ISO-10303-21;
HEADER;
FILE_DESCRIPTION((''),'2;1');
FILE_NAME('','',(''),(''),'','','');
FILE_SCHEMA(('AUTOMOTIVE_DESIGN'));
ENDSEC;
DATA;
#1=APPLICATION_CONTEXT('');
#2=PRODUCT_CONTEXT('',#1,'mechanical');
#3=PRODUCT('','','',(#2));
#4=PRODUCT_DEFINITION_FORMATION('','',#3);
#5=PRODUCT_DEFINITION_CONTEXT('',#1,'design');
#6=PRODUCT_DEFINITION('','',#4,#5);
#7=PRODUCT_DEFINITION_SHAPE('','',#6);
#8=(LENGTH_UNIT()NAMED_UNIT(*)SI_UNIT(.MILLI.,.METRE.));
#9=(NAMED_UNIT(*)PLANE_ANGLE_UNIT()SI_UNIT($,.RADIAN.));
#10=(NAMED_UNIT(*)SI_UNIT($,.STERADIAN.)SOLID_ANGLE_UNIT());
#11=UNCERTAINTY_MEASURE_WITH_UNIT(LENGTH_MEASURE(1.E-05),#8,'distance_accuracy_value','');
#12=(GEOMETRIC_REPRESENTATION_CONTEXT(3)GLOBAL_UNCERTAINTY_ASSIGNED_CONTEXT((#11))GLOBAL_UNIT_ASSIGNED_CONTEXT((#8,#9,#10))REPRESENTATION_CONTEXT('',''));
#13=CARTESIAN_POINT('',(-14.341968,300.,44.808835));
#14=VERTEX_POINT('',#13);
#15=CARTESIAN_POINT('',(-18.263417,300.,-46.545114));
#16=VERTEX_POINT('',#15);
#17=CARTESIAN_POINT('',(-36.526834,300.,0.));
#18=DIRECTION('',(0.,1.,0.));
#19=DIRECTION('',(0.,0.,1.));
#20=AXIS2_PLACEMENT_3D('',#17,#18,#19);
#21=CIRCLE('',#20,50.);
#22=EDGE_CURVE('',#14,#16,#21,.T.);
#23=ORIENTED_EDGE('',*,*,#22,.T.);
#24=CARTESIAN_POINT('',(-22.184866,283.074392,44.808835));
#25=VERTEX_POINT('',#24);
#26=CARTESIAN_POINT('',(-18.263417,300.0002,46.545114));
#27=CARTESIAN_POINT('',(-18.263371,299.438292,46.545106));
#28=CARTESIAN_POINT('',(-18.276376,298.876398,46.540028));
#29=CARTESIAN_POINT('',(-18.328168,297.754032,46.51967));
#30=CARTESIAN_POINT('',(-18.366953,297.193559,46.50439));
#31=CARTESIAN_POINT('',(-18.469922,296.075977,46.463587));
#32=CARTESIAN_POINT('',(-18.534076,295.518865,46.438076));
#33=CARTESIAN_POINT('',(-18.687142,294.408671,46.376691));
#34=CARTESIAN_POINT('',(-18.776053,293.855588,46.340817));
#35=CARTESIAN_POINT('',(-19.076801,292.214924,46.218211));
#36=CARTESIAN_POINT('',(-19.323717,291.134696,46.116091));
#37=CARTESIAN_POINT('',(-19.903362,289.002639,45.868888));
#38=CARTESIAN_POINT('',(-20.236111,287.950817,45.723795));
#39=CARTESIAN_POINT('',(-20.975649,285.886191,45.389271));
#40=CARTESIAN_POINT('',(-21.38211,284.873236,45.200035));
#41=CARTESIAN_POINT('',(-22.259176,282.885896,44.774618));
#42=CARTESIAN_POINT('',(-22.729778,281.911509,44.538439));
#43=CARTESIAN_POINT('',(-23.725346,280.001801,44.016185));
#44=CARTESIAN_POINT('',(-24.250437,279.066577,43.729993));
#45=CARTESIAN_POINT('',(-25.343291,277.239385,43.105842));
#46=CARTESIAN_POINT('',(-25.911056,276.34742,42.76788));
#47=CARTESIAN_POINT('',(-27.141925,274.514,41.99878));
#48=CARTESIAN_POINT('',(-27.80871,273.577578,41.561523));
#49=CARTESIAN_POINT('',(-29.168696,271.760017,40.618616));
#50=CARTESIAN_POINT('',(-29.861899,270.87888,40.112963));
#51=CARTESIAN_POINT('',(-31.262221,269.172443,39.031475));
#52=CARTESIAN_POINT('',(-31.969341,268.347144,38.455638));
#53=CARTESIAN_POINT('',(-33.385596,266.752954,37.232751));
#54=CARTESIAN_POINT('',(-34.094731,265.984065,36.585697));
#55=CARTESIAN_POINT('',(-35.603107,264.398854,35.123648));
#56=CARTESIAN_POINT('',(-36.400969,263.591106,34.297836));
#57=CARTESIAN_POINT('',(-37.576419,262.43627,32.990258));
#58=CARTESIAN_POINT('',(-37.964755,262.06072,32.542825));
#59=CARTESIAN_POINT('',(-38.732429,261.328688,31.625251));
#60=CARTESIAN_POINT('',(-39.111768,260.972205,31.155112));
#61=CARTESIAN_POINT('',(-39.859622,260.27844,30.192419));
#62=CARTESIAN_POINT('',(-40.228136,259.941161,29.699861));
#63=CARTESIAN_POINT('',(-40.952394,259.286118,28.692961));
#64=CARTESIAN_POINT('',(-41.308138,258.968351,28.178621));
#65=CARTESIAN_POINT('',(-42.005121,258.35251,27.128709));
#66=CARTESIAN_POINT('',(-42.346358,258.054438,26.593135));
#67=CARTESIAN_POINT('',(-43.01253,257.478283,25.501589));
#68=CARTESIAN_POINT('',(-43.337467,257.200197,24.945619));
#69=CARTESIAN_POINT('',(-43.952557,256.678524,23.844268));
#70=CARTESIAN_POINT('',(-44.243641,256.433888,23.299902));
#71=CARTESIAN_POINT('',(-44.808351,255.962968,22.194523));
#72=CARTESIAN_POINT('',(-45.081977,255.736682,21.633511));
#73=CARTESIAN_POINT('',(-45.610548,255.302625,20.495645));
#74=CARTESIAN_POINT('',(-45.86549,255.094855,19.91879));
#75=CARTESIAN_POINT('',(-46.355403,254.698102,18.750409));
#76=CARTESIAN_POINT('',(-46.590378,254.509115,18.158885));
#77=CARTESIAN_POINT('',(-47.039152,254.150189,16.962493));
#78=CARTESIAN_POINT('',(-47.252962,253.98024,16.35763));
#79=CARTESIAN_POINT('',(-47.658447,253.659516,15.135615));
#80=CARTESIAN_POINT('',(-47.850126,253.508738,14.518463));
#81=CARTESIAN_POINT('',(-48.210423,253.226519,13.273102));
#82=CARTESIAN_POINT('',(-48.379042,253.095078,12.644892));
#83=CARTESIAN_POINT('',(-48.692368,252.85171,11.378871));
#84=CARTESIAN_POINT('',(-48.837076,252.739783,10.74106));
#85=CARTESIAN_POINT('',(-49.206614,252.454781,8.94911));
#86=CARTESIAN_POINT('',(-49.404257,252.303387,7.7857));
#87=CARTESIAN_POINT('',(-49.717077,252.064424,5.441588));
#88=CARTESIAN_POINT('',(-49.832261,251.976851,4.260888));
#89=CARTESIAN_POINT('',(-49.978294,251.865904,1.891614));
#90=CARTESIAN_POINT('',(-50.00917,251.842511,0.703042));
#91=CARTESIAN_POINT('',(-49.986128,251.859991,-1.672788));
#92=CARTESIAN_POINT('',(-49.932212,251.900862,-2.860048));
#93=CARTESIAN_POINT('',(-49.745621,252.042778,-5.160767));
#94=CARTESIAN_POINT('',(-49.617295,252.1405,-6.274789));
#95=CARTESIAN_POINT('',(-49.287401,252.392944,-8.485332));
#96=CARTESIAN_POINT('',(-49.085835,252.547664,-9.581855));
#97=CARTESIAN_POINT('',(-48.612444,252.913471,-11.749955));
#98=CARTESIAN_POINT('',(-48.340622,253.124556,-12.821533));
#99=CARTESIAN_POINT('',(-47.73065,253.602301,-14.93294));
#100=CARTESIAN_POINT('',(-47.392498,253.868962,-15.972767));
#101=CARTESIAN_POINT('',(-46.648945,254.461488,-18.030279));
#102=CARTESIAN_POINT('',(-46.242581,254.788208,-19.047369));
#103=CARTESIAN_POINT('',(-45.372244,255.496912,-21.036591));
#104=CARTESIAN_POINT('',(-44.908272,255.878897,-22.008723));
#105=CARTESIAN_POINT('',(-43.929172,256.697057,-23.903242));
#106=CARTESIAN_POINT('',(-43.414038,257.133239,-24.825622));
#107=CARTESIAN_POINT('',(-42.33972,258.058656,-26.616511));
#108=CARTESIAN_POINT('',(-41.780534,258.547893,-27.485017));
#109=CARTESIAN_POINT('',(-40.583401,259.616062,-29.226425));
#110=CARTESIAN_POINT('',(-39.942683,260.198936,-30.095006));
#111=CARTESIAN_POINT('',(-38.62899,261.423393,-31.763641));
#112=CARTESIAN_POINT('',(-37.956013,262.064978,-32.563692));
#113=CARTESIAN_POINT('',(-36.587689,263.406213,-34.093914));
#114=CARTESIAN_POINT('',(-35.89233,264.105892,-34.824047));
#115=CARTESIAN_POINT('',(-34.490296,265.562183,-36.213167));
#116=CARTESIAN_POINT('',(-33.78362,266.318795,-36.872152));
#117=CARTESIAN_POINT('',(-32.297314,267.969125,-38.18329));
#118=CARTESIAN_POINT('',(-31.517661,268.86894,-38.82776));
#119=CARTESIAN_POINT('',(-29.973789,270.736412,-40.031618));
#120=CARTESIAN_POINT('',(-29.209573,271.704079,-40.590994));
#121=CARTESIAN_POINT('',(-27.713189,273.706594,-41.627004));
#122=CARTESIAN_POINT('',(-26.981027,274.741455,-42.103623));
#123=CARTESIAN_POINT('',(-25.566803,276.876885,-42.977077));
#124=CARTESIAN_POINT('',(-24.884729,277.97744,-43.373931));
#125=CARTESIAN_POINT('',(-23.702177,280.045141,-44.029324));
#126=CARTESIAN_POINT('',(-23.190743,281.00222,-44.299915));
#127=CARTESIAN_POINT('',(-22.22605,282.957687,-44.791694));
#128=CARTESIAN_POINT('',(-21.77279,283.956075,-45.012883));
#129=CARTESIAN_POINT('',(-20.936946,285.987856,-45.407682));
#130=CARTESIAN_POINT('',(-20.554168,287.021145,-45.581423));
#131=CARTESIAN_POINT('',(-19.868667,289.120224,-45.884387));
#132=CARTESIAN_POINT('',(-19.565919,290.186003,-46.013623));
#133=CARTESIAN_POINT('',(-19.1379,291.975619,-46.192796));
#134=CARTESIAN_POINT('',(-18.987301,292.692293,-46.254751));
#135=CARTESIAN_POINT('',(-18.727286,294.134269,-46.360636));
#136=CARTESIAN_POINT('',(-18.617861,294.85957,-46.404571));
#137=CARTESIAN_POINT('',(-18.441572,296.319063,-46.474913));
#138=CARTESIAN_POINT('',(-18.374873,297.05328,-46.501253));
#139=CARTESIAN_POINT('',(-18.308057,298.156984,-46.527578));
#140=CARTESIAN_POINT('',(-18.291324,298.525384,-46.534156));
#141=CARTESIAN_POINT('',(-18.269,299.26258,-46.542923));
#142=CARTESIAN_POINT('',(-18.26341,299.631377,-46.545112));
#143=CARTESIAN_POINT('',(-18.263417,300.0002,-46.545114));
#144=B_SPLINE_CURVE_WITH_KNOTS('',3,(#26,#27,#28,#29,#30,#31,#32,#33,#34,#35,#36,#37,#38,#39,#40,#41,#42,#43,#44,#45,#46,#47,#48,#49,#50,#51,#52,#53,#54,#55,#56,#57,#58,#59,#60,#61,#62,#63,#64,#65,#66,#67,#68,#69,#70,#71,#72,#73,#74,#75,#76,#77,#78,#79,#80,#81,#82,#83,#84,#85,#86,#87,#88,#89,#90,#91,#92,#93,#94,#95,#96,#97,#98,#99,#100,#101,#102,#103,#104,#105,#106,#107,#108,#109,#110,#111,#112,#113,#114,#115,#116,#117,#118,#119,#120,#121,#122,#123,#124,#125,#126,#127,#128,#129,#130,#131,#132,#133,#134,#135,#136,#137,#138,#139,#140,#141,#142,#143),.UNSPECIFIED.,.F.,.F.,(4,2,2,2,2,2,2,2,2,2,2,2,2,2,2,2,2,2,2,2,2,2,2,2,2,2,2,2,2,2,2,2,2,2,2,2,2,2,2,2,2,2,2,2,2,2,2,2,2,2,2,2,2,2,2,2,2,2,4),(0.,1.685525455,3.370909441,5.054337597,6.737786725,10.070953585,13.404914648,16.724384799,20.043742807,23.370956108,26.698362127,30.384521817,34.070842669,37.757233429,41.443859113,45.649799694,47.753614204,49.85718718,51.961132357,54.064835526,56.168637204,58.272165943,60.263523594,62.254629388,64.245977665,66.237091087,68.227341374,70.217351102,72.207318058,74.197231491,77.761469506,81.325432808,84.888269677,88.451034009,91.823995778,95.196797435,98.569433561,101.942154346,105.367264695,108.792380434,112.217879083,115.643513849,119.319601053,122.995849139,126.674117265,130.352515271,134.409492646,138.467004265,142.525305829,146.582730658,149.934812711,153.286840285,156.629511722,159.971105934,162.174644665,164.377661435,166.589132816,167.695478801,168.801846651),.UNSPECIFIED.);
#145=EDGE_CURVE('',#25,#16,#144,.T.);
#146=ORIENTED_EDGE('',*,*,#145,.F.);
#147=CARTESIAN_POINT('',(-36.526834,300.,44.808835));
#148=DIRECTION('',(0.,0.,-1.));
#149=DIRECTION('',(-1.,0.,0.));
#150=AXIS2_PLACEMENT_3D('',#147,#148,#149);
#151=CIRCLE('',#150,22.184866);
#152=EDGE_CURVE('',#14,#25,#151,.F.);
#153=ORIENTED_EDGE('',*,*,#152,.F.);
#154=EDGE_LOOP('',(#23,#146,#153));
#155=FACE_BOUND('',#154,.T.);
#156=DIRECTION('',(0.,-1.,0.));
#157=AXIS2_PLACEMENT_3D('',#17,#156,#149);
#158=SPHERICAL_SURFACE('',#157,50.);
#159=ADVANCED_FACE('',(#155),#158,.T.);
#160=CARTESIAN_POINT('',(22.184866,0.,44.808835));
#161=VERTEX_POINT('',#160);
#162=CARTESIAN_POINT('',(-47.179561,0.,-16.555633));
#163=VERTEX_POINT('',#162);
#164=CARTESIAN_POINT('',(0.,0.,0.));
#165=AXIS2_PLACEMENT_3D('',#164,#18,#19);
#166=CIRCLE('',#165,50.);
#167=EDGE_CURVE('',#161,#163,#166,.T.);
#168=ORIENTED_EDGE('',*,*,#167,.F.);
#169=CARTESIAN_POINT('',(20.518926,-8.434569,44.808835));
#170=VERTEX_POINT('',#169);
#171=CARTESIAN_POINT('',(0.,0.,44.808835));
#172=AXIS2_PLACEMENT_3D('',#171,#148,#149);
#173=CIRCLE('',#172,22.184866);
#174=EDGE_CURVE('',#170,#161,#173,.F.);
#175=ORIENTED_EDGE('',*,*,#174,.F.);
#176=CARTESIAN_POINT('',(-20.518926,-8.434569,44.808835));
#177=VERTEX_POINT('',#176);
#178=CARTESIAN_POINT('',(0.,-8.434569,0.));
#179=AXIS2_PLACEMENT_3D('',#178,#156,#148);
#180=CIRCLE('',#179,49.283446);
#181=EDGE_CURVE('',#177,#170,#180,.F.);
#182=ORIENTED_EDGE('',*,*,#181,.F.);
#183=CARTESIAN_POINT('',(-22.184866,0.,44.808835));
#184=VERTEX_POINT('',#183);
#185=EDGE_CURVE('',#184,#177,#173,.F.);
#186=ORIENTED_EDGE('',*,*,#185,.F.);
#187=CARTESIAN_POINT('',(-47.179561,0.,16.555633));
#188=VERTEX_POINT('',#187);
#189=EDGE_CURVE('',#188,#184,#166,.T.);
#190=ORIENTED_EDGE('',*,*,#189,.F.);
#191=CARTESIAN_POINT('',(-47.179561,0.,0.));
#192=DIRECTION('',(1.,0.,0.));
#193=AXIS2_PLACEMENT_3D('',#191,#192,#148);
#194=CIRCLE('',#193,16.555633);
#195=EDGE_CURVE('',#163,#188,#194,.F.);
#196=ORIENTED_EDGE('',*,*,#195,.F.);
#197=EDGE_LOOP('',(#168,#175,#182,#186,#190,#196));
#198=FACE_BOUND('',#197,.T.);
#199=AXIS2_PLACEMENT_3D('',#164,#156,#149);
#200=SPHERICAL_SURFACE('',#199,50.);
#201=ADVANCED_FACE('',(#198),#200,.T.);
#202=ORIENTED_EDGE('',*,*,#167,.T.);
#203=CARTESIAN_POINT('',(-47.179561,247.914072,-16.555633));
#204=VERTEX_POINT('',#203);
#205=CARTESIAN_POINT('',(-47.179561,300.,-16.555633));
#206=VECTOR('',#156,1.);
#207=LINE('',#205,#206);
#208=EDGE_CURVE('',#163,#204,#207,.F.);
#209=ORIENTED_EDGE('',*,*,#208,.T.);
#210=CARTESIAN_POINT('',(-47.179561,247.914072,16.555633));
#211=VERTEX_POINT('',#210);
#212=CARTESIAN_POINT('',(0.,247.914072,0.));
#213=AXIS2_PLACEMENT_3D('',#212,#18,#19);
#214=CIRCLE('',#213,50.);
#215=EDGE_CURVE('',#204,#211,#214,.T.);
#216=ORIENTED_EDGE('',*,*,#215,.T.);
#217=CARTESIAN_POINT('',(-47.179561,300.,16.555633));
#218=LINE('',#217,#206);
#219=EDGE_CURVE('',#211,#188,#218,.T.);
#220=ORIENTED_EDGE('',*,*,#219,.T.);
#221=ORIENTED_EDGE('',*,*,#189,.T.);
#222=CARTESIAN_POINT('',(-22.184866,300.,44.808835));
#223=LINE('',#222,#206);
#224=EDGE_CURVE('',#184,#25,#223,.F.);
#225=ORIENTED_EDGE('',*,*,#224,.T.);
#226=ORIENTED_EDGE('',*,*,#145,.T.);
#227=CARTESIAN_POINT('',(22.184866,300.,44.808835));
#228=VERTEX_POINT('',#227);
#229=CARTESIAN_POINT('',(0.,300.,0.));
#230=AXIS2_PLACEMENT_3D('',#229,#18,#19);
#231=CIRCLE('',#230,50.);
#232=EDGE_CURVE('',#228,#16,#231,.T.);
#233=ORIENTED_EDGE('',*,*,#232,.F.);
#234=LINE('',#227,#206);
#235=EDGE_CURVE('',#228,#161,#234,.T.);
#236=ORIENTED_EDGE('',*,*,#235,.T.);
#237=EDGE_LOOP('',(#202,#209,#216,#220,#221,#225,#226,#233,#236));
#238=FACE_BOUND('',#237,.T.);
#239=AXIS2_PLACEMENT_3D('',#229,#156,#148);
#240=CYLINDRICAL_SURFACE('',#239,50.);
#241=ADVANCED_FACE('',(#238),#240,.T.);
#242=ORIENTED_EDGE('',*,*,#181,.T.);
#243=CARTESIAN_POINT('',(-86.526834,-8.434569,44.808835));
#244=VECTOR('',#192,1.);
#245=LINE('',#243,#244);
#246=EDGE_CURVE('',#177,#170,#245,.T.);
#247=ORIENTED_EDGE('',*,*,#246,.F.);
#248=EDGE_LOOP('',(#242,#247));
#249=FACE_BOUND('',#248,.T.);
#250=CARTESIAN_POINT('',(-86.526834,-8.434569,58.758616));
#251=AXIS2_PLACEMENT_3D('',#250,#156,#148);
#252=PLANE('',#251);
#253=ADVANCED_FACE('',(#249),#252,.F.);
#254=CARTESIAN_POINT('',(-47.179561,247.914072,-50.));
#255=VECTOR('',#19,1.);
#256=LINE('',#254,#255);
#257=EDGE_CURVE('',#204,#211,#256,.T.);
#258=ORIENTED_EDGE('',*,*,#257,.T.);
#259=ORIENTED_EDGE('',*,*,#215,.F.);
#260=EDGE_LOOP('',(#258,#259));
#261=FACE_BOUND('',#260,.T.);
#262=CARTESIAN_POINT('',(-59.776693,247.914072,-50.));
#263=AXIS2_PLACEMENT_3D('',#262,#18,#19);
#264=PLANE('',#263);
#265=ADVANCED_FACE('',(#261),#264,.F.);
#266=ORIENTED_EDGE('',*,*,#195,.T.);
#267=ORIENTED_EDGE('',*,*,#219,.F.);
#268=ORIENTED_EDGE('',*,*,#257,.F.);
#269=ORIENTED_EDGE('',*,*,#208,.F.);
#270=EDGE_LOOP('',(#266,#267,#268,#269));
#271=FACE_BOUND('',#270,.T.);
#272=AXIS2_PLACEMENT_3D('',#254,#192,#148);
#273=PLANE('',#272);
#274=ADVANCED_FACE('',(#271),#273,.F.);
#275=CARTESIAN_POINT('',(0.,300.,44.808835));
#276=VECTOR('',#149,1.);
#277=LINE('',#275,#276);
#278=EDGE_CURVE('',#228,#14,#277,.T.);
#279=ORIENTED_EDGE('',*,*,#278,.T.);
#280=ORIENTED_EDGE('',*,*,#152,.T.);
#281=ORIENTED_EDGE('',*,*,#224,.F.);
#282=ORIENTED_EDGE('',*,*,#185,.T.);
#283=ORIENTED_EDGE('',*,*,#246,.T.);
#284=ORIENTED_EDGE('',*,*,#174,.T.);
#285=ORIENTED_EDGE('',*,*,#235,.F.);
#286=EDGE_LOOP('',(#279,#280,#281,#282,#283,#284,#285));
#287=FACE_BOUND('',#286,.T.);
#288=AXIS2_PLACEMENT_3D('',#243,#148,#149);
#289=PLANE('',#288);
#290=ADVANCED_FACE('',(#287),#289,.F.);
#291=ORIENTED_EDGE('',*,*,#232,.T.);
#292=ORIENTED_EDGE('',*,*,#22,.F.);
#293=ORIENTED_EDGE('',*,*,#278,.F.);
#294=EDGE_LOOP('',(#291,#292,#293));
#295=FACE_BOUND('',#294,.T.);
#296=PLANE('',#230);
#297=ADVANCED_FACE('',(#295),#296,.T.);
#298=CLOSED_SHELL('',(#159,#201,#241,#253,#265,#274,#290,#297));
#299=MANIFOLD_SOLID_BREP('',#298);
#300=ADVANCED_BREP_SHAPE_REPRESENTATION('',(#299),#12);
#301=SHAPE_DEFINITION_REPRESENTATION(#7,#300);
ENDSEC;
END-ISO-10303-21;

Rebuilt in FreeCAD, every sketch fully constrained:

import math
import FreeCAD as App
import Part
import Sketcher

V = App.Vector

doc = App.newDocument("Part")
params = doc.addObject("Spreadsheet::Sheet", "Params")
for row, (alias, value) in enumerate([
    ("sketch1_diameter", "100 mm"),
    ("pad1_length", "300 mm"),
    ("sketch2_radius", "50 mm"),
    ("revolution_angle", "360 deg"),
    ("sketch3_radius", "50 mm"),
    ("revolution2_angle", "360 deg"),
], start=1):
    params.set(f"A{row}", alias)
    params.set(f"B{row}", "=" + value)
    params.setAlias(f"B{row}", alias)

body = doc.addObject("PartDesign::Body", "Body")

sketch1 = body.newObject("Sketcher::SketchObject", "Sketch")
sketch1.AttachmentSupport = (doc.getObject("XZ_Plane"), [""])
sketch1.MapMode = "FlatFace"
sketch1.addGeometry(Part.Circle(V(0, 0, 0), V(0, 0, 1), 50), False)
sketch1.addConstraint(Sketcher.Constraint("Coincident", 0, 3, -1, 1))
sketch1.addConstraint(Sketcher.Constraint("Diameter", 0, 100.0))
sketch1.setExpression("Constraints[1]", "Params.sketch1_diameter")
pad1 = body.newObject("PartDesign::Pad", "Pad")
pad1.Profile = sketch1
pad1.setExpression("Length", "Params.pad1_length")
pad1.Reversed = True

sketch2 = body.newObject("Sketcher::SketchObject", "Sketch001")
sketch2.AttachmentSupport = (doc.getObject("XY_Plane"), [""])
sketch2.MapMode = "FlatFace"
sketch2.addGeometry(Part.LineSegment(V(-36.526834, 350, 0), V(-36.526834, 250, 0)), False)
sketch2.addGeometry(Part.ArcOfCircle(Part.Circle(V(-36.526834, 300, 0), V(0, 0, 1), 50), math.radians(-90), math.radians(90)), False)
sketch2.addGeometry(Part.LineSegment(V(-36.526834, 250, 0), V(-36.526834, 350, 0)), True)
sketch2.addConstraint(Sketcher.Constraint("Coincident", 0, 1, 1, 2))
sketch2.addConstraint(Sketcher.Constraint("Coincident", 1, 1, 0, 2))
sketch2.addConstraint(Sketcher.Constraint("Vertical", 0))
sketch2.addConstraint(Sketcher.Constraint("Vertical", 2))
sketch2.addConstraint(Sketcher.Constraint("Coincident", 2, 1, 1, 1))
sketch2.addConstraint(Sketcher.Constraint("Vertical", 1, 3, 0, 1))
sketch2.addConstraint(Sketcher.Constraint("Equal", 0, 2))
sketch2.addConstraint(Sketcher.Constraint("Radius", 1, 50.0))
sketch2.addConstraint(Sketcher.Constraint("DistanceY", -1, 1, 1, 3, 300.0))
sketch2.addConstraint(Sketcher.Constraint("DistanceX", 1, 3, -1, 1, 36.526834))
sketch2.setExpression("Constraints[7]", "Params.sketch2_radius")
revolution = body.newObject("PartDesign::Revolution", "Revolution")
revolution.Profile = sketch2
revolution.ReferenceAxis = (sketch2, ["Axis0"])
revolution.setExpression("Angle", "Params.revolution_angle")

sketch3 = body.newObject("Sketcher::SketchObject", "Sketch002")
sketch3.AttachmentSupport = (doc.getObject("XY_Plane"), [""])
sketch3.MapMode = "FlatFace"
sketch3.addGeometry(Part.LineSegment(V(0, 50, 0), V(0, -50, 0)), False)
sketch3.addGeometry(Part.ArcOfCircle(Part.Circle(V(0, 0, 0), V(0, 0, 1), 50), math.radians(-90), math.radians(90)), False)
sketch3.addConstraint(Sketcher.Constraint("Coincident", 0, 1, 1, 2))
sketch3.addConstraint(Sketcher.Constraint("Coincident", 1, 1, 0, 2))
sketch3.addConstraint(Sketcher.Constraint("Vertical", 0))
sketch3.addConstraint(Sketcher.Constraint("Coincident", 1, 3, -1, 1))
sketch3.addConstraint(Sketcher.Constraint("PointOnObject", 0, 1, -2))
sketch3.addConstraint(Sketcher.Constraint("Radius", 1, 50.0))
sketch3.setExpression("Constraints[5]", "Params.sketch3_radius")
revolution2 = body.newObject("PartDesign::Revolution", "Revolution001")
revolution2.Profile = sketch3
revolution2.ReferenceAxis = (sketch3, ["V_Axis"])
revolution2.setExpression("Angle", "Params.revolution2_angle")

sketch4 = body.newObject("Sketcher::SketchObject", "Sketch003")
sketch4.AttachmentSupport = (doc.getObject("XY_Plane"), [""])
sketch4.MapMode = "FlatFace"
sketch4.addGeometry(Part.LineSegment(V(-59.776693, 247.914072, 0), V(-59.776693, -31.513222, 0)), False)
sketch4.addGeometry(Part.LineSegment(V(-59.776693, -31.513222, 0), V(-47.179561, -31.513222, 0)), False)
sketch4.addGeometry(Part.LineSegment(V(-47.179561, -31.513222, 0), V(-47.179561, 247.914072, 0)), False)
sketch4.addGeometry(Part.LineSegment(V(-47.179561, 247.914072, 0), V(-59.776693, 247.914072, 0)), False)
sketch4.addConstraint(Sketcher.Constraint("Coincident", 0, 2, 1, 1))
sketch4.addConstraint(Sketcher.Constraint("Coincident", 1, 2, 2, 1))
sketch4.addConstraint(Sketcher.Constraint("Coincident", 2, 2, 3, 1))
sketch4.addConstraint(Sketcher.Constraint("Coincident", 3, 2, 0, 1))
sketch4.addConstraint(Sketcher.Constraint("Vertical", 0))
sketch4.addConstraint(Sketcher.Constraint("Horizontal", 1))
sketch4.addConstraint(Sketcher.Constraint("Vertical", 2))
sketch4.addConstraint(Sketcher.Constraint("Horizontal", 3))
sketch4.addConstraint(Sketcher.Constraint("DistanceX", 1, 1, 1, 2, 12.597132))
sketch4.addConstraint(Sketcher.Constraint("DistanceY", 0, 2, 0, 1, 279.427294))
sketch4.addConstraint(Sketcher.Constraint("DistanceY", 0, 2, -1, 1, 31.513222))
sketch4.addConstraint(Sketcher.Constraint("DistanceX", 1, 2, -1, 1, 47.179561))
pocket1 = body.newObject("PartDesign::Pocket", "Pocket")
pocket1.Profile = sketch4
pocket1.Type = "ThroughAll"
pocket1.Midplane = True

sketch5 = body.newObject("Sketcher::SketchObject", "Sketch004")
sketch5.AttachmentSupport = (doc.getObject("YZ_Plane"), [""])
sketch5.MapMode = "FlatFace"
sketch5.addGeometry(Part.LineSegment(V(355.326215, 58.758616, 0), V(-8.434569, 58.758616, 0)), False)
sketch5.addGeometry(Part.LineSegment(V(-8.434569, 58.758616, 0), V(-8.434569, 44.808835, 0)), False)
sketch5.addGeometry(Part.LineSegment(V(-8.434569, 44.808835, 0), V(355.326215, 44.808835, 0)), False)
sketch5.addGeometry(Part.LineSegment(V(355.326215, 44.808835, 0), V(355.326215, 58.758616, 0)), False)
sketch5.addConstraint(Sketcher.Constraint("Coincident", 0, 2, 1, 1))
sketch5.addConstraint(Sketcher.Constraint("Coincident", 1, 2, 2, 1))
sketch5.addConstraint(Sketcher.Constraint("Coincident", 2, 2, 3, 1))
sketch5.addConstraint(Sketcher.Constraint("Coincident", 3, 2, 0, 1))
sketch5.addConstraint(Sketcher.Constraint("Horizontal", 0))
sketch5.addConstraint(Sketcher.Constraint("Vertical", 1))
sketch5.addConstraint(Sketcher.Constraint("Horizontal", 2))
sketch5.addConstraint(Sketcher.Constraint("Vertical", 3))
sketch5.addConstraint(Sketcher.Constraint("DistanceY", 1, 2, 1, 1, 13.949781))
sketch5.addConstraint(Sketcher.Constraint("DistanceX", 0, 2, 0, 1, 363.760784))
sketch5.addConstraint(Sketcher.Constraint("DistanceX", 0, 2, -1, 1, 8.434569))
sketch5.addConstraint(Sketcher.Constraint("DistanceY", -1, 1, 0, 2, 58.758616))
pocket2 = body.newObject("PartDesign::Pocket", "Pocket001")
pocket2.Profile = sketch5
pocket2.Type = "ThroughAll"
pocket2.Midplane = True

doc.recompute()
